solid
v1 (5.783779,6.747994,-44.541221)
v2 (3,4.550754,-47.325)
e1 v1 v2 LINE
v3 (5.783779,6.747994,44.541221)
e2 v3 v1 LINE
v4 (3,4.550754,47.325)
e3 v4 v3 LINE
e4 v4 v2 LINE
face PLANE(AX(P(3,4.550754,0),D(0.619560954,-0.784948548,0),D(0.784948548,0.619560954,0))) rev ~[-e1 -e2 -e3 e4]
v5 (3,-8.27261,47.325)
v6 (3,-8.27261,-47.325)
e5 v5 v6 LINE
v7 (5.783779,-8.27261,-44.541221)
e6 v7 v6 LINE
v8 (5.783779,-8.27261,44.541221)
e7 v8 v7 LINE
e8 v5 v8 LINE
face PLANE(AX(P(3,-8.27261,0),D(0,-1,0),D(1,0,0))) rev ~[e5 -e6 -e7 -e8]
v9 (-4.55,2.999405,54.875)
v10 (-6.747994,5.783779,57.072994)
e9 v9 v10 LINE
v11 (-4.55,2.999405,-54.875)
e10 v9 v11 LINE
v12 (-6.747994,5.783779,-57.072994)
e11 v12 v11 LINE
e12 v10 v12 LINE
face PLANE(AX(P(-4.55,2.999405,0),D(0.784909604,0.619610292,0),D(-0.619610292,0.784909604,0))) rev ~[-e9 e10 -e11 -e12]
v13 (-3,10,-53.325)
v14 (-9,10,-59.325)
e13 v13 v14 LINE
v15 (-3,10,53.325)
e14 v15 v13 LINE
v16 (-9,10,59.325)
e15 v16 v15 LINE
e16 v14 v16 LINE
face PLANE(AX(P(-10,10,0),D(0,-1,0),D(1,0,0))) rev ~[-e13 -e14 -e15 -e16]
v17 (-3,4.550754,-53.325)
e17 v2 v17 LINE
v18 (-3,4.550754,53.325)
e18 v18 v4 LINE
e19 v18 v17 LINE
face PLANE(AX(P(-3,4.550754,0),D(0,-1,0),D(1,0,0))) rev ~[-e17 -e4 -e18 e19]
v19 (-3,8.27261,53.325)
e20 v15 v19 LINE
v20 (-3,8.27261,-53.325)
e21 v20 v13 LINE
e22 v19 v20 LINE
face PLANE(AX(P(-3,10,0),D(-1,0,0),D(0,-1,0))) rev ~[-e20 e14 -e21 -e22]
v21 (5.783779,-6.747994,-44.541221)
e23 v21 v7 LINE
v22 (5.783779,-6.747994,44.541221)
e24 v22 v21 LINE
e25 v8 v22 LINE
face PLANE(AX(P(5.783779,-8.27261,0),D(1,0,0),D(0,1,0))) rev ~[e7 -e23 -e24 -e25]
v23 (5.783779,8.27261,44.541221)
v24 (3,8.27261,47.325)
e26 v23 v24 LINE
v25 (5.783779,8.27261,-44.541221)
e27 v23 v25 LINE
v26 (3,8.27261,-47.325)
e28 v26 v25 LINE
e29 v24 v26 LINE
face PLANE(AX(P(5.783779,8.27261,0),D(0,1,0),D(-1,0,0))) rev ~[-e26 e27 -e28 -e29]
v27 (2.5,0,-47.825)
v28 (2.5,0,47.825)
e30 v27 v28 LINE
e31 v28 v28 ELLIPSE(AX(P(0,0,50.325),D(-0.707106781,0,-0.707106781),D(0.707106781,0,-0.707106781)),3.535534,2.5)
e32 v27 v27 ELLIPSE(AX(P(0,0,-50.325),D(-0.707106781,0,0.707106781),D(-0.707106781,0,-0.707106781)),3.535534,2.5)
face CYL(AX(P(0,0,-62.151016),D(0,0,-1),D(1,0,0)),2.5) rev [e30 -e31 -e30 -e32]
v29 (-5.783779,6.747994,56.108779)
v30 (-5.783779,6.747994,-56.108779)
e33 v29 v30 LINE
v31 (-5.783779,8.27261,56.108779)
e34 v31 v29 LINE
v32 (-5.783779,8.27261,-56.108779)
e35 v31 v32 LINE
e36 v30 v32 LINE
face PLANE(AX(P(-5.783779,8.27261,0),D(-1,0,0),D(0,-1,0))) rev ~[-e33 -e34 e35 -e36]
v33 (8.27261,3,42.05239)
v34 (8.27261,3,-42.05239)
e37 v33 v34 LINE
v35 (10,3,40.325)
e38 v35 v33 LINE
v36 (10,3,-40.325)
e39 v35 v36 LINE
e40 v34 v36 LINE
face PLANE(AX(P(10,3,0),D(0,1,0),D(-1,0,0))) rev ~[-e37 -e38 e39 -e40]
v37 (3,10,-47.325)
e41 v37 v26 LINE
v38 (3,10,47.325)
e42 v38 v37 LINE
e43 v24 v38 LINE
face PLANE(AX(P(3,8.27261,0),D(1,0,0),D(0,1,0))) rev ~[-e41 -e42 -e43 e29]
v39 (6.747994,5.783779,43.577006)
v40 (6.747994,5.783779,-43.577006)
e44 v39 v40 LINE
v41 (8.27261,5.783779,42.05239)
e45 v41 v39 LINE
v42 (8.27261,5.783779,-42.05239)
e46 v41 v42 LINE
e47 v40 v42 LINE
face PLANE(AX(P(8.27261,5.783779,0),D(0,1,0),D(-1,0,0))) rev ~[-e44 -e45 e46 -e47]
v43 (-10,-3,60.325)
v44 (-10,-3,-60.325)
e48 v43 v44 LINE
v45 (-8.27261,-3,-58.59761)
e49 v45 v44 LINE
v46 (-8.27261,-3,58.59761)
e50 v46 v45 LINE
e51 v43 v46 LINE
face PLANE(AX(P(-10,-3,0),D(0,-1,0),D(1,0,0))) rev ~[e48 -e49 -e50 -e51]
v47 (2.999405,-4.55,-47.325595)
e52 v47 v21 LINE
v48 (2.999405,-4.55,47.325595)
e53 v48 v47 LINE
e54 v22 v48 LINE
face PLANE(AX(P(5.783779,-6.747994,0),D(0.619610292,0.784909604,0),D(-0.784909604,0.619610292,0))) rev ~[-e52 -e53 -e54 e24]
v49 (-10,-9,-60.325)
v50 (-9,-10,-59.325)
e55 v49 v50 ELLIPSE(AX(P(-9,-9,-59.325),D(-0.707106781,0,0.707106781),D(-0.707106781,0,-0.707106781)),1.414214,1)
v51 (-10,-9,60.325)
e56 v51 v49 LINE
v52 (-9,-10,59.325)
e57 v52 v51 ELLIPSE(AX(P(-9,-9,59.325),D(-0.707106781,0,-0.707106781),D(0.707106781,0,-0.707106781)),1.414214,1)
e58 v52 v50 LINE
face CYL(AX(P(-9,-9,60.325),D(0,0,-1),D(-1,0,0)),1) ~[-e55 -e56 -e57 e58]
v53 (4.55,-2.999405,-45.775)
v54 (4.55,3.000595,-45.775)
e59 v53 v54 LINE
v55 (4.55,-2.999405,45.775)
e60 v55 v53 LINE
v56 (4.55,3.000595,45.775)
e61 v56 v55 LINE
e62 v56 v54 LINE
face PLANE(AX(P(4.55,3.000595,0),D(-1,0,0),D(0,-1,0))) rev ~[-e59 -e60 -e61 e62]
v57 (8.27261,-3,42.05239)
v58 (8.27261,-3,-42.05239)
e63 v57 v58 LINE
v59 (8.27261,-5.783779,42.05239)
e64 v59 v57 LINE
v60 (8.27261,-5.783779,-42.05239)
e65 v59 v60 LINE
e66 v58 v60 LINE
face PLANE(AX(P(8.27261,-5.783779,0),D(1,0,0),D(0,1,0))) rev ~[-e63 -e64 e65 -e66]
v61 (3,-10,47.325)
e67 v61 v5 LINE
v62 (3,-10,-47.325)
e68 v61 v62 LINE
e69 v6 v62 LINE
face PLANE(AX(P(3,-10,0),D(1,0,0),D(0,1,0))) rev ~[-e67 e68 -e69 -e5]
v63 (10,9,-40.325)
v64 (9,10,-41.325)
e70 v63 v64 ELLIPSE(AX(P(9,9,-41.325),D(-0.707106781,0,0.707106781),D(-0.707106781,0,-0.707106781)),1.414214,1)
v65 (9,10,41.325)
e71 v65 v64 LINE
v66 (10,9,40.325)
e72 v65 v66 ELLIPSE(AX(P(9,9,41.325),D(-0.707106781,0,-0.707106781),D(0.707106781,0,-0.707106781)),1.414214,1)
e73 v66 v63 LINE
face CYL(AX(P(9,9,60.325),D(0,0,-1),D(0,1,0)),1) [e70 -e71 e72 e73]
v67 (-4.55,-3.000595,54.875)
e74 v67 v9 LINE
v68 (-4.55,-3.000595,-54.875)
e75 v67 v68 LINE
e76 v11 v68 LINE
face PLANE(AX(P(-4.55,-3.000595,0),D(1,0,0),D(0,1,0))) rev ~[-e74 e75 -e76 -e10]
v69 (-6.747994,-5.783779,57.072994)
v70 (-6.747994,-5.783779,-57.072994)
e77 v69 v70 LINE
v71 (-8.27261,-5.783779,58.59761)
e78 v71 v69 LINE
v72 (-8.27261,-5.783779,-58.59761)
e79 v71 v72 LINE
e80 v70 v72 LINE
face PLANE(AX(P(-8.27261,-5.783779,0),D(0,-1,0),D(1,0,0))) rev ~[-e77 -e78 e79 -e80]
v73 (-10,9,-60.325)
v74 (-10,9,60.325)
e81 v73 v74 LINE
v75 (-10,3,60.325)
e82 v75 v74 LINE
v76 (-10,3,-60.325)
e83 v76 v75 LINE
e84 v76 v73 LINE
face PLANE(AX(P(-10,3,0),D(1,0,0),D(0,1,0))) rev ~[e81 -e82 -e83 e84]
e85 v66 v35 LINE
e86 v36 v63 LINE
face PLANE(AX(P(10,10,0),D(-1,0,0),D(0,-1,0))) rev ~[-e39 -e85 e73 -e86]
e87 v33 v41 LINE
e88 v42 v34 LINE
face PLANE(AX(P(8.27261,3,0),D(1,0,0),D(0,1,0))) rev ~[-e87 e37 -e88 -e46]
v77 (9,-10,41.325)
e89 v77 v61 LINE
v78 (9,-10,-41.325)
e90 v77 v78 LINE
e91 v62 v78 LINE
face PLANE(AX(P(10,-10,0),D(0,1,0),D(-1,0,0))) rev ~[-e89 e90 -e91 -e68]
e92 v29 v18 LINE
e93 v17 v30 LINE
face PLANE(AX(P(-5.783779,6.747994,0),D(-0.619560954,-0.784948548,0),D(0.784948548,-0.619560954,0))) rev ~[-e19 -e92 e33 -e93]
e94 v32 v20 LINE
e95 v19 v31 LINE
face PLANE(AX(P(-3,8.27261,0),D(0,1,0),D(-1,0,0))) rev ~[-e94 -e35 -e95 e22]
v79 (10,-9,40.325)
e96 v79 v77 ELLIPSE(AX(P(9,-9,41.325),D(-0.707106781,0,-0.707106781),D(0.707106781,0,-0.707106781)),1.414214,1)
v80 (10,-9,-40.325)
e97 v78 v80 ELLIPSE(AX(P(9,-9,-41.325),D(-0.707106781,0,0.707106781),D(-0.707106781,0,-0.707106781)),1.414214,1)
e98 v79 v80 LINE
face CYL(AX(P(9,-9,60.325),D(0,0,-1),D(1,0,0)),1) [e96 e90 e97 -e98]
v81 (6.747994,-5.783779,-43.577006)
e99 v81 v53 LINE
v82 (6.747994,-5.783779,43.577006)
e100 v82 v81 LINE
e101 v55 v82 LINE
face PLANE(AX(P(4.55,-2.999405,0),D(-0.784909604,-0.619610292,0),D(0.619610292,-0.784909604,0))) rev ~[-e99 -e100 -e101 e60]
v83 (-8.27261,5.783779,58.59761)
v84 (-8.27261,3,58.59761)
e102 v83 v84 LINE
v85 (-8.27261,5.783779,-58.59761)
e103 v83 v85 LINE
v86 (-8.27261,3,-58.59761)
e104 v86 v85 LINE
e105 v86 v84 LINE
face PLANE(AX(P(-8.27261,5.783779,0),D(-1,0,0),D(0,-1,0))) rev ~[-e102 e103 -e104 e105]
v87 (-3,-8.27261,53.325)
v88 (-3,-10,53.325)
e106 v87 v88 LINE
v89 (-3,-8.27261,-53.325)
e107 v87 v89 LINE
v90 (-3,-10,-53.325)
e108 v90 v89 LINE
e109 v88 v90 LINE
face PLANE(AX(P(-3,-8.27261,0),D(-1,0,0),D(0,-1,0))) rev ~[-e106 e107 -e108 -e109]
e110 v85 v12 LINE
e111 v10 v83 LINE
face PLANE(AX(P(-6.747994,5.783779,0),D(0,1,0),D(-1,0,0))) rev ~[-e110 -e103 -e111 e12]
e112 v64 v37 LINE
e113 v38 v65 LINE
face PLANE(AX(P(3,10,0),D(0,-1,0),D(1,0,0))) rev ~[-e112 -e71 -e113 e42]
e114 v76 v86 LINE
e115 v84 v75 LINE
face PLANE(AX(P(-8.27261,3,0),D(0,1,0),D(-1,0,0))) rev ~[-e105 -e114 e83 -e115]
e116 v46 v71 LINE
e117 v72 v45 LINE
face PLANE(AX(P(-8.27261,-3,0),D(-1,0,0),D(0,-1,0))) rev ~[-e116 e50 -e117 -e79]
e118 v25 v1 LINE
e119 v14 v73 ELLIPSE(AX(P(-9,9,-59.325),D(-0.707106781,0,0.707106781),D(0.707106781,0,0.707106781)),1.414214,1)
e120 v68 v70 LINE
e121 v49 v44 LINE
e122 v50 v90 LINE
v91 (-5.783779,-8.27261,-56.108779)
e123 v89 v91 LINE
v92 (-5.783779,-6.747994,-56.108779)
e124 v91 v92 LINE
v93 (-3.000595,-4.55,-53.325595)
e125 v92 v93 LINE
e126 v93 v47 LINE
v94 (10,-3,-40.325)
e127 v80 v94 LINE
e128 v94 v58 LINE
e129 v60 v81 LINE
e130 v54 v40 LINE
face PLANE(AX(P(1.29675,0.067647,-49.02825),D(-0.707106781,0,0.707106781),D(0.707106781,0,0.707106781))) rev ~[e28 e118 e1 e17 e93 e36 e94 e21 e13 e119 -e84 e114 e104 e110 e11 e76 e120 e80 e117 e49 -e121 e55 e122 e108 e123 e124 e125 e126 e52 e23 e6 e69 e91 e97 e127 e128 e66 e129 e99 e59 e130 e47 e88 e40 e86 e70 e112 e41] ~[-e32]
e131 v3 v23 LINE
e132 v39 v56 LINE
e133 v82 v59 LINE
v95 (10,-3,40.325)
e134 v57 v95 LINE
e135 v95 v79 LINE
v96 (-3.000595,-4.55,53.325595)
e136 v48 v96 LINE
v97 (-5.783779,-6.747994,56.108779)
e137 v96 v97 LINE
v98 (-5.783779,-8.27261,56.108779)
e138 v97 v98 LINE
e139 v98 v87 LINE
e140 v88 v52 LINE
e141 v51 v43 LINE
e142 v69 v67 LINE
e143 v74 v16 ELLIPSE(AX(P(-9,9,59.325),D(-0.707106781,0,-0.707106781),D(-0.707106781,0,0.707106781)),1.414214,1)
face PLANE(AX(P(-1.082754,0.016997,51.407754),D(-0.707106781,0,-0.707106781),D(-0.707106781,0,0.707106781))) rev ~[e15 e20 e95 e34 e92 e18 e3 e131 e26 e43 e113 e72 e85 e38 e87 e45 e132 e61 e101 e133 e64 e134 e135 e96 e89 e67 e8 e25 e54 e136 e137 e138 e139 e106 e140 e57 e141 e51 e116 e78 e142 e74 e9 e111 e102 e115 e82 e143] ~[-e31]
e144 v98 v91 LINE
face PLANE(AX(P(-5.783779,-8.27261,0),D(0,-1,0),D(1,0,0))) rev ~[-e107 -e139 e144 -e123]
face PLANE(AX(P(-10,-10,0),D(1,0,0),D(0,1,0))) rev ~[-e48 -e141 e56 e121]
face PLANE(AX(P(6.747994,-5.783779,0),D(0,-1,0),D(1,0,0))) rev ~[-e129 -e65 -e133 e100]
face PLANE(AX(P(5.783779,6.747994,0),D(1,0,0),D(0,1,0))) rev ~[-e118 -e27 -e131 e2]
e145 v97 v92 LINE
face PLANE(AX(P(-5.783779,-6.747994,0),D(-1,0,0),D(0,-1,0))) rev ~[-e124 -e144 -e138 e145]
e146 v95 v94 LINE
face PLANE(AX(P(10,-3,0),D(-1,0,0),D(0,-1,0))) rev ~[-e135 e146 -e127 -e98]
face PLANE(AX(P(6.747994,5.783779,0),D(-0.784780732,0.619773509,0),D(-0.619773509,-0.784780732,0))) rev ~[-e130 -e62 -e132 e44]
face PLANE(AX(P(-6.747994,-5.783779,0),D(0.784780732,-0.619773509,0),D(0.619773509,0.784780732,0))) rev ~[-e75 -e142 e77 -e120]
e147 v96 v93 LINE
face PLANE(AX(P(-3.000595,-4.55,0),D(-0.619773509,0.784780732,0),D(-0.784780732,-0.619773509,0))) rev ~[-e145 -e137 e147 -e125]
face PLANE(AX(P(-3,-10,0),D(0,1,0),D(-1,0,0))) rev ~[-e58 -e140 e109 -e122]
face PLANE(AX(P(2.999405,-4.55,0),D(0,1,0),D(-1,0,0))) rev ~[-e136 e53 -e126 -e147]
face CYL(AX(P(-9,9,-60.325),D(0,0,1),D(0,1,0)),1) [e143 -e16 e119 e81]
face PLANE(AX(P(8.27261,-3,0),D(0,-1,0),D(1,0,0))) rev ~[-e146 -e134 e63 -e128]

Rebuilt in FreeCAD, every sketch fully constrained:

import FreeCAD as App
import Part
import Sketcher
from FreeCAD import Vector


def edges_at(feature, points):
    """Names of the edges that pass closest to the given points."""
    edges = feature.Shape.Edges
    near = lambda p: min(range(len(edges)), key=lambda i: edges[i].distToShape(Part.Vertex(*p))[0])
    return sorted({f"Edge{near(p) + 1}" for p in points})


def add_polygon(sketch, points):
    """Adds a closed chain of lines whose ends are joined by coincident constraints."""
    first, n = sketch.GeometryCount, len(points)
    for a, b in zip(points, points[1:] + points[:1]):
        sketch.addGeometry(Part.LineSegment(App.Vector(*a, 0), App.Vector(*b, 0)), False)
    for i in range(n):
        sketch.addConstraint(Sketcher.Constraint("Coincident", first + i, 2, first + (i + 1) % n, 1))

doc = App.newDocument("Part")
params = doc.addObject("Spreadsheet::Sheet", "Params")
for row, (alias, value) in enumerate([
    ("sketch1_width", "7 mm"),
    ("sketch1_width2", "6 mm"),
    ("pad1_length", "120.65 mm"),
    ("sketch2_diameter", "5 mm"),
    ("fillet_radius", "1 mm"),
    ("sketch3_height", "22 mm"),
    ("sketch4_width", "35 mm"),
], start=1):
    params.set(f"A{row}", alias)
    params.set(f"B{row}", "=" + value)
    params.setAlias(f"B{row}", alias)

body = doc.addObject("PartDesign::Body", "Body")

sketch1 = body.newObject("Sketcher::SketchObject", "Sketch")
sketch1.AttachmentSupport = (doc.getObject("XY_Plane"), [""])
sketch1.MapMode = "FlatFace"
add_polygon(sketch1, [(-3, 10), (-10, 10), (-10, 3), (-8.3, 3), (-8.3, 5.8), (-6.7, 5.8), (-4.5, 3), (-4.5, -3), (-6.7, -5.8), (-8.3, -5.8), (-8.3, -3), (-10, -3), (-10, -10), (-3, -10), (-3, -8.3), (-5.8, -8.3), (-5.8, -6.7), (-3, -4.5), (3, -4.5), (5.8, -6.7), (5.8, -8.3), (3, -8.3), (3, -10), (10, -10), (10, -3), (8.3, -3), (8.3, -5.8), (6.7, -5.8), (4.5, -3), (4.5, 3), (6.7, 5.8), (8.3, 5.8), (8.3, 3), (10, 3), (10, 10), (3, 10), (3, 8.3), (5.8, 8.3), (5.8, 6.7), (3, 4.6), (-3, 4.6), (-5.8, 6.7), (-5.8, 8.3), (-3, 8.3)])
sketch1.addConstraint([
    Sketcher.Constraint("Horizontal", 0),
    Sketcher.Constraint("Vertical", 1),
    Sketcher.Constraint("Horizontal", 2),
    Sketcher.Constraint("Vertical", 3),
    Sketcher.Constraint("Horizontal", 4),
    Sketcher.Constraint("Vertical", 6),
    Sketcher.Constraint("Horizontal", 8),
    Sketcher.Constraint("Vertical", 9),
    Sketcher.Constraint("Horizontal", 10),
    Sketcher.Constraint("Vertical", 11),
    Sketcher.Constraint("Horizontal", 12),
    Sketcher.Constraint("Vertical", 13),
    Sketcher.Constraint("Horizontal", 14),
    Sketcher.Constraint("Vertical", 15),
    Sketcher.Constraint("Horizontal", 17),
    Sketcher.Constraint("Vertical", 19),
    Sketcher.Constraint("Horizontal", 20),
    Sketcher.Constraint("Vertical", 21),
    Sketcher.Constraint("Horizontal", 22),
    Sketcher.Constraint("Vertical", 23),
    Sketcher.Constraint("Horizontal", 24),
    Sketcher.Constraint("Vertical", 25),
    Sketcher.Constraint("Horizontal", 26),
    Sketcher.Constraint("Vertical", 28),
    Sketcher.Constraint("Horizontal", 30),
    Sketcher.Constraint("Vertical", 31),
    Sketcher.Constraint("Horizontal", 32),
    Sketcher.Constraint("Vertical", 33),
    Sketcher.Constraint("Horizontal", 34),
    Sketcher.Constraint("Vertical", 35),
    Sketcher.Constraint("Horizontal", 36),
    Sketcher.Constraint("Vertical", 37),
    Sketcher.Constraint("Horizontal", 39),
    Sketcher.Constraint("Vertical", 41),
    Sketcher.Constraint("Horizontal", 42),
    Sketcher.Constraint("Vertical", 43),
    Sketcher.Constraint("Symmetric", 0, 2, 22, 2, -1, 1),
    Sketcher.Constraint("Symmetric", 2, 2, 24, 2, -1, 1),
    Sketcher.Constraint("Symmetric", 4, 2, 26, 2, -1, 1),
    Sketcher.Constraint("Symmetric", 5, 2, 27, 2, -1, 1),
    Sketcher.Constraint("Symmetric", 7, 2, 29, 2, -1, 1),
    Sketcher.Constraint("Symmetric", 9, 2, 31, 2, -1, 1),
    Sketcher.Constraint("Symmetric", 11, 2, 33, 2, -1, 1),
    Sketcher.Constraint("Symmetric", 13, 2, 35, 2, -1, 1),
    Sketcher.Constraint("Symmetric", 15, 2, 37, 2, -1, 1),
    Sketcher.Constraint("Symmetric", 18, 2, 40, 2, -1, 1),
    Sketcher.Constraint("Symmetric", 20, 2, 42, 2, -1, 1),
    Sketcher.Constraint("Symmetric", 15, 2, 18, 2, -2),
    Sketcher.Constraint("Symmetric", 13, 2, 20, 2, -2),
    Sketcher.Constraint("Symmetric", 11, 2, 22, 2, -2),
    Sketcher.Constraint("Symmetric", 9, 2, 24, 2, -2),
    Sketcher.Constraint("Symmetric", 7, 2, 26, 2, -2),
    Sketcher.Constraint("Parallel", 7, 29),
    Sketcher.Constraint("Vertical", 35, 2, 38, 2),
    Sketcher.Constraint("Vertical", 13, 2, 39, 2),
    Sketcher.Constraint("Equal", 17, 39),
    Sketcher.Constraint("Equal", 34, 1),
    Sketcher.Constraint("Equal", 42, 3),
    Sketcher.Constraint("Equal", 39, 6),
    Sketcher.Constraint("Equal", 32, 13),
    Sketcher.Constraint("Equal", 30, 15),
    Sketcher.Constraint("Equal", 7, 16),
    Sketcher.Constraint("Equal", 5, 18),
    Sketcher.Constraint("Equal", 29, 38),
    Sketcher.Constraint("DistanceX", 0, 2, 0, 1, 7.0),
    Sketcher.Constraint("DistanceX", 17, 1, 17, 2, 6.0),
    Sketcher.Constraint("DistanceY", -1, 1, 0, 2, 10.0),
    Sketcher.Constraint("DistanceX", 5, 2, -1, 1, 4.55),
    Sketcher.Constraint("DistanceX", 2, 1, 2, 2, 1.72739),
    Sketcher.Constraint("DistanceX", 14, 2, 14, 1, 2.783779),
    Sketcher.Constraint("DistanceY", 15, 2, 6, 2, 3.747399),
    Sketcher.Constraint("Distance", 5, 3.547382),
])
sketch1.setExpression("Constraints[108]", "Params.sketch1_width")
sketch1.setExpression("Constraints[109]", "Params.sketch1_width2")
pad1 = body.newObject("PartDesign::Pad", "Pad")
pad1.Profile = sketch1
pad1.setExpression("Length", "Params.pad1_length")
pad1.Midplane = True

sketch2 = body.newObject("Sketcher::SketchObject", "Sketch001")
sketch2.AttachmentSupport = (doc.getObject("XY_Plane"), [""])
sketch2.MapMode = "FlatFace"
sketch2.AttachmentOffset = App.Placement(Vector(0, 0, 60.325), App.Rotation())
sketch2.addGeometry(Part.Circle(Vector(0, 0, 0), Vector(0, 0, 1), 2.5), False)
sketch2.addConstraint([
    Sketcher.Constraint("Coincident", 0, 3, -1, 1),
    Sketcher.Constraint("Diameter", 0, 5.0),
])
sketch2.setExpression("Constraints[1]", "Params.sketch2_diameter")
pocket1 = body.newObject("PartDesign::Pocket", "Pocket")
pocket1.Profile = sketch2
pocket1.Type = "ThroughAll"
pocket1.Midplane = True
doc.recompute()

fillet = body.newObject("PartDesign::Fillet", "Fillet")
fillet.Base = (pocket1, edges_at(pocket1, [
    (-10, 10, 0),
    (10, 10, 0),
    (10, -10, 0),
    (-10, -10, 0),
]))
fillet.setExpression("Radius", "Params.fillet_radius")

sketch3 = body.newObject("Sketcher::SketchObject", "Sketch002")
sketch3.Placement = App.Placement(Vector(25.1625, 0, -25.1625), App.Rotation(Vector(0.707106781, 0, 0.707106781), Vector(0, 0.999999999, 0), Vector(-0.707106781, 0, 0.707106781), "ZXY"))
add_polygon(sketch3, [(-55, 11), (-55, -11), (-13, -11), (-13, 11)])
sketch3.addConstraint([
    Sketcher.Constraint("Vertical", 0),
    Sketcher.Constraint("Horizontal", 1),
    Sketcher.Constraint("Vertical", 2),
    Sketcher.Constraint("Horizontal", 3),
    Sketcher.Constraint("DistanceY", 0, 2, 0, 1, 22.0),
    Sketcher.Constraint("DistanceX", 1, 1, 1, 2, 42.278906),
    Sketcher.Constraint("DistanceX", 0, 2, -1, 1, 54.890721),
    Sketcher.Constraint("DistanceY", 0, 2, -1, 1, 10.932353),
])
sketch3.setExpression("Constraints[8]", "Params.sketch3_height")
pocket2 = body.newObject("PartDesign::Pocket", "Pocket001")
pocket2.Profile = sketch3
pocket2.Type = "ThroughAll"

sketch4 = body.newObject("Sketcher::SketchObject", "Sketch003")
sketch4.Placement = App.Placement(Vector(25.1625, 0, 25.1625), App.Rotation(Vector(-0.707106781, 0, 0.707106781), Vector(0, 0.999999999, 0), Vector(-0.707106781, 0, -0.707106781), "ZXY"))
add_polygon(sketch4, [(20, 11), (20, -11), (55, -11), (55, 11)])
sketch4.addConstraint([
    Sketcher.Constraint("Vertical", 0),
    Sketcher.Constraint("Horizontal", 1),
    Sketcher.Constraint("Vertical", 2),
    Sketcher.Constraint("Horizontal", 3),
    Sketcher.Constraint("DistanceX", 1, 1, 1, 2, 35.0),
    Sketcher.Constraint("DistanceY", 0, 2, 0, 1, 22.10449),
    Sketcher.Constraint("DistanceY", 0, 2, -1, 1, 11.035248),
    Sketcher.Constraint("DistanceX", -1, 1, 0, 2, 19.616394),
])
sketch4.setExpression("Constraints[8]", "Params.sketch4_width")
pocket3 = body.newObject("PartDesign::Pocket", "Pocket002")
pocket3.Profile = sketch4
pocket3.Type = "ThroughAll"

doc.recompute()
